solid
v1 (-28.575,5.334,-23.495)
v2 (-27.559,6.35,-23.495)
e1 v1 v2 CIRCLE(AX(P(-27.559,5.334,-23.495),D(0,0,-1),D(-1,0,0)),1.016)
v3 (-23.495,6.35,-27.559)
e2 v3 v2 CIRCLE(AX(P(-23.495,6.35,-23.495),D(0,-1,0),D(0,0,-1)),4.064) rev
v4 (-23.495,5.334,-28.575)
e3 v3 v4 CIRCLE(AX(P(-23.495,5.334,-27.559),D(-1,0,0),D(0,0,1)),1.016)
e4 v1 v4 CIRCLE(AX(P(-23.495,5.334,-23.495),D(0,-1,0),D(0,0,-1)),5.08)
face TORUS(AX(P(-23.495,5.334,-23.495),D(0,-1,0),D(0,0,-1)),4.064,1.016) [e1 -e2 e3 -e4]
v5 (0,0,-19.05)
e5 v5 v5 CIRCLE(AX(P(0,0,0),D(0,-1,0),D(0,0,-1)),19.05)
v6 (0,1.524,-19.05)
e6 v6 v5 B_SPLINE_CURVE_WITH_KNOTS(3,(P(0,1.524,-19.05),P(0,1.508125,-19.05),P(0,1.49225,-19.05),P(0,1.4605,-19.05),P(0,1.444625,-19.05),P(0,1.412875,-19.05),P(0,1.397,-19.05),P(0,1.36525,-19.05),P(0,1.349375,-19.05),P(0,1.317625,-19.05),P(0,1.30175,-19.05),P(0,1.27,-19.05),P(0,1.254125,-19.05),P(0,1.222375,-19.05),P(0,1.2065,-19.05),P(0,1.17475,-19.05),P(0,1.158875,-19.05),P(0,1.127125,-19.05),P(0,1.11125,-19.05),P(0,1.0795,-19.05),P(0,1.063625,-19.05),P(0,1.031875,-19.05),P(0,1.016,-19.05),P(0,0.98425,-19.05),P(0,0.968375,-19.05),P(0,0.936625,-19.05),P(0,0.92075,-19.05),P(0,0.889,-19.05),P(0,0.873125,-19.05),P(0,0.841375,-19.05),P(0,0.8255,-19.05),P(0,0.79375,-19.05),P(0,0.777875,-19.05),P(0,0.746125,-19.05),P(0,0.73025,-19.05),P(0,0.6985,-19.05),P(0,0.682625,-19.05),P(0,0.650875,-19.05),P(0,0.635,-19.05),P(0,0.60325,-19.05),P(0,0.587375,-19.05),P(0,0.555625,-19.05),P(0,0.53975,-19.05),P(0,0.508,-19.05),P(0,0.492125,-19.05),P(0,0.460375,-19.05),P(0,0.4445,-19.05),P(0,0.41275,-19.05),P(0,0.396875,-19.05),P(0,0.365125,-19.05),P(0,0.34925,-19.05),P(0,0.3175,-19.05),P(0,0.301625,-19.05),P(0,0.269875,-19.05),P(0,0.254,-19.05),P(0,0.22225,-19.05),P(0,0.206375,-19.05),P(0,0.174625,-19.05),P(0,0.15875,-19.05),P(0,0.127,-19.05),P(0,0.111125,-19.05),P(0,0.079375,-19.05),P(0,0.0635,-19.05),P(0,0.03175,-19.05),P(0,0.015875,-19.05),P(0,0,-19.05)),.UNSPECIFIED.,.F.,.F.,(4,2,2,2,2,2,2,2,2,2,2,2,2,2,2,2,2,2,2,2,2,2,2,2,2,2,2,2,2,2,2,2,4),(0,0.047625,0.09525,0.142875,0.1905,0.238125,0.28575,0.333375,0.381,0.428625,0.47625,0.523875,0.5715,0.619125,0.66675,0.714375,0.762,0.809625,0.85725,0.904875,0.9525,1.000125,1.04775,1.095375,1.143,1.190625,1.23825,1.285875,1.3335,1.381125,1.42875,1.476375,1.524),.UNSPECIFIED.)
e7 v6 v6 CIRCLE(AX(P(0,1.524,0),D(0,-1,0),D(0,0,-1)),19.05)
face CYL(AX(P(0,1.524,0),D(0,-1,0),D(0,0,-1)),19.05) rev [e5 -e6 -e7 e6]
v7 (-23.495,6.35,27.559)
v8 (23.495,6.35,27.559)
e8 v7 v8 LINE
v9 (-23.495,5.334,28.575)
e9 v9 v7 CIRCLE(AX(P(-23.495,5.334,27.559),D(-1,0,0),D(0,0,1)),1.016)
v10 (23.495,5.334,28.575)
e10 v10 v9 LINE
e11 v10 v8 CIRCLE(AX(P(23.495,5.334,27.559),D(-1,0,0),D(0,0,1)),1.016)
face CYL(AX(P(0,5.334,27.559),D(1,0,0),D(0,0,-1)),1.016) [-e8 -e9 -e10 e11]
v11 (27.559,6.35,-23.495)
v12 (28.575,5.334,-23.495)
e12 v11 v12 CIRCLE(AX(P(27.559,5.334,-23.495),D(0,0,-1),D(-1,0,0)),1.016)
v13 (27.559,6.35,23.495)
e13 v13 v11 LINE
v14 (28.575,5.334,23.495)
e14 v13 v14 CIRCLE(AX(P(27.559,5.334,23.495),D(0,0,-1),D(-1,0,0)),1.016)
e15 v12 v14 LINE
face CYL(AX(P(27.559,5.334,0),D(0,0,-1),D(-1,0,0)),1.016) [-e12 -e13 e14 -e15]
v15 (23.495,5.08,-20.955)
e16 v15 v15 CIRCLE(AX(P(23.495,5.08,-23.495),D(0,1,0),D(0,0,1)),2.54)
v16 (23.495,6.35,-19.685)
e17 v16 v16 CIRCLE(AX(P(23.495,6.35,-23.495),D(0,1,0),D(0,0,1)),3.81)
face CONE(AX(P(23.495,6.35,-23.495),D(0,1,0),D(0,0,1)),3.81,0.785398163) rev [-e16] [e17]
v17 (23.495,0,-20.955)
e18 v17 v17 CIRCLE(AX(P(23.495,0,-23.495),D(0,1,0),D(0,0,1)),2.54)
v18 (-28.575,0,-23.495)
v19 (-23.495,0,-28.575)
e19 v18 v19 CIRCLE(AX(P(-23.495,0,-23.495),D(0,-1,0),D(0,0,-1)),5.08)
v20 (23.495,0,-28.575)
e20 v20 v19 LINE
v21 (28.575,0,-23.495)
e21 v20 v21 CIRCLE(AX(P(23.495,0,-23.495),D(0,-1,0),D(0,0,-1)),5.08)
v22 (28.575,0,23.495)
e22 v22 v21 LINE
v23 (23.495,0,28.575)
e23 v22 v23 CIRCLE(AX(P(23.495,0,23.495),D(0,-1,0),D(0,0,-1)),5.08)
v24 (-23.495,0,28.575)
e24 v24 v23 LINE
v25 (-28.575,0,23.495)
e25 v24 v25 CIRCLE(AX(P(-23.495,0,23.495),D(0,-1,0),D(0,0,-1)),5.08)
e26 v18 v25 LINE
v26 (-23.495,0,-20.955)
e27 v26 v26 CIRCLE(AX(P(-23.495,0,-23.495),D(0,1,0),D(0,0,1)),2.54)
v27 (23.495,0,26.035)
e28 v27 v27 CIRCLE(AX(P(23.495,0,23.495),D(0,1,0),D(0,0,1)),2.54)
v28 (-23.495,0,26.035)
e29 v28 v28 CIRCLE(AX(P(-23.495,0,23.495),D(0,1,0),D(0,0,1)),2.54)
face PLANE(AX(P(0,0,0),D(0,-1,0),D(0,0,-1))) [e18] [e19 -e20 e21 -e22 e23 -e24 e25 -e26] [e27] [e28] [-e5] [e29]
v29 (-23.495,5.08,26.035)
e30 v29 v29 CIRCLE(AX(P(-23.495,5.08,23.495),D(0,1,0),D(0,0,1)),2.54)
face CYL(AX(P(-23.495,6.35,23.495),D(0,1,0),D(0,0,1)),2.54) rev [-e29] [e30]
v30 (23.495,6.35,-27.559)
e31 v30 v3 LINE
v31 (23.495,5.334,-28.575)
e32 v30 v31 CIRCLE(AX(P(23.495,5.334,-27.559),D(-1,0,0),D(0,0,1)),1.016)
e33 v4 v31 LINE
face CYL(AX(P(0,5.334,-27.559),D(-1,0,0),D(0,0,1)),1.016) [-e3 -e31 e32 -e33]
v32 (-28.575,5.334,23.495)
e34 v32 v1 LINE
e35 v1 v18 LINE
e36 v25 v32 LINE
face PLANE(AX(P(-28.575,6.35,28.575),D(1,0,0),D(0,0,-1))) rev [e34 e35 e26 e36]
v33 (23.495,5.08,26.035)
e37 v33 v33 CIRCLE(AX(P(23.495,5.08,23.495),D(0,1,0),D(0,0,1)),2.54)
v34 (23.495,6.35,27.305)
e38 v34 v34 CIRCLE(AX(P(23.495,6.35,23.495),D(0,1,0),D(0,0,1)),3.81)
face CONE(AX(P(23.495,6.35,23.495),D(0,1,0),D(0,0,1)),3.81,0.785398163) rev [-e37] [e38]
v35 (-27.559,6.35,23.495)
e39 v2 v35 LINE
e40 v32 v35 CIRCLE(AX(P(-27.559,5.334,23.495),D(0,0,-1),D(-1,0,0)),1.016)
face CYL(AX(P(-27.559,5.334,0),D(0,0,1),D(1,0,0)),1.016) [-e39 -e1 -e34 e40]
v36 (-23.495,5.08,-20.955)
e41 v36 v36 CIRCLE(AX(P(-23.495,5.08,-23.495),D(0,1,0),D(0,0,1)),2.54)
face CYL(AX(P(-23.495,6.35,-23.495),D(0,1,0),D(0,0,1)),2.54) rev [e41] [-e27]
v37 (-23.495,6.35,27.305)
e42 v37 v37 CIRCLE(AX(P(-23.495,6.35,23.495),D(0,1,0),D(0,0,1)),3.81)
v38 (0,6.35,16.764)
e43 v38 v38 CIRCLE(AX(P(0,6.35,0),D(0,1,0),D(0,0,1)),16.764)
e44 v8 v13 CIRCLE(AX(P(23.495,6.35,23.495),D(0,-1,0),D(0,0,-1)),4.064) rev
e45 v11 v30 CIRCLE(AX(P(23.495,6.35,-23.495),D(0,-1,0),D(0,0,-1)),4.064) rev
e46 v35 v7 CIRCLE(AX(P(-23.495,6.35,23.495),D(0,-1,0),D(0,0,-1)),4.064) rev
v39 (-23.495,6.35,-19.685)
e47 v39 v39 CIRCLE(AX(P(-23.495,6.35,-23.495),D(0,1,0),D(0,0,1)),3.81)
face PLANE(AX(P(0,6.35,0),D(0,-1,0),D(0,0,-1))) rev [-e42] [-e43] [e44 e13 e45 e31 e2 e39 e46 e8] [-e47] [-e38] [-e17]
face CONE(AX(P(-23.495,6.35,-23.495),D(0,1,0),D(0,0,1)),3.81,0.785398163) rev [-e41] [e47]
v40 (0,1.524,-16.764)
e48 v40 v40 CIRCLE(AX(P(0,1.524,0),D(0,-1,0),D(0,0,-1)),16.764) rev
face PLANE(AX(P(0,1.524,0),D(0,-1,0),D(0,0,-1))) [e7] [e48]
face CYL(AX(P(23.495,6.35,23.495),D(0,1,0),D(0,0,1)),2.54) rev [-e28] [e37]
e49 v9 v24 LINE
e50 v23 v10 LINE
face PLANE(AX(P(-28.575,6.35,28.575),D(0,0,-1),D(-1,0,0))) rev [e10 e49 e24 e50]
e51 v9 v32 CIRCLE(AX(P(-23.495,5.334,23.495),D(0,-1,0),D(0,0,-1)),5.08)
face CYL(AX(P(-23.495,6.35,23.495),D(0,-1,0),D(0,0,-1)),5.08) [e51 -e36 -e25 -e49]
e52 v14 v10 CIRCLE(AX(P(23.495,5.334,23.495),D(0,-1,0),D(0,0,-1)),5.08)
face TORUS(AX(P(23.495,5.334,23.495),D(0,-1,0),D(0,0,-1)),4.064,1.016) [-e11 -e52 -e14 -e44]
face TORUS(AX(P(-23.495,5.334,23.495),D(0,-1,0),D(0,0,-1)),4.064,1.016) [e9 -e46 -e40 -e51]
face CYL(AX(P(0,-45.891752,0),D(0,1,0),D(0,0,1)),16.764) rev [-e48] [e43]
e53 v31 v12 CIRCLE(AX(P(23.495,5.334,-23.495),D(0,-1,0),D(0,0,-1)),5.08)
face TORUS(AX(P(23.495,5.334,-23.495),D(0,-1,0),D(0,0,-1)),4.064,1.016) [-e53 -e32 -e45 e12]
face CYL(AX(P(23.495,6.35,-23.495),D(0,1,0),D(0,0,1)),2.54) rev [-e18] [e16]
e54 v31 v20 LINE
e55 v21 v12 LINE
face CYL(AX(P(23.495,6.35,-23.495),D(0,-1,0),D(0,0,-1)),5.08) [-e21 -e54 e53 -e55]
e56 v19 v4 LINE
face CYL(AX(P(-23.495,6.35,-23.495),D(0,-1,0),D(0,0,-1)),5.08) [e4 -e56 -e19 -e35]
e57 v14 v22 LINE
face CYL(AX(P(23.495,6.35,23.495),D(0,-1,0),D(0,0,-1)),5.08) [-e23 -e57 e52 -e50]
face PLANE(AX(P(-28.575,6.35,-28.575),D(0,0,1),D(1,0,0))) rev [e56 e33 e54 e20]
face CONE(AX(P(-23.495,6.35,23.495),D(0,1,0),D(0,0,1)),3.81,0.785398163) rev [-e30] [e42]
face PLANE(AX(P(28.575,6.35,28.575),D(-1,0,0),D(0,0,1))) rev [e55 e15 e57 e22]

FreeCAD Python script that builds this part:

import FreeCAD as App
import Part
import Sketcher
Q = App.Units.Quantity


def edges_at(feature, points):
    """Names of the edges that pass closest to the given points."""
    edges = feature.Shape.Edges
    near = lambda p: min(range(len(edges)), key=lambda i: edges[i].distToShape(Part.Vertex(*p))[0])
    return sorted({f"Edge{near(p) + 1}" for p in points})

doc = App.newDocument("Part")
body = doc.addObject("PartDesign::Body", "Body")

# Sketch on XZ plane
sketch1 = body.newObject("Sketcher::SketchObject", "Sketch")
sketch1.AttachmentSupport = (doc.getObject("XZ_Plane"), [""])
sketch1.MapMode = "FlatFace"
sketch1.addGeometry([
    Part.LineSegment(App.Vector(-29, -29, 0), App.Vector(-29, 29, 0)),
    Part.LineSegment(App.Vector(-29, 29, 0), App.Vector(29, 29, 0)),
    Part.LineSegment(App.Vector(29, 29, 0), App.Vector(29, -29, 0)),
    Part.LineSegment(App.Vector(29, -29, 0), App.Vector(-29, -29, 0)),
], False)
sketch1.addConstraint([
    Sketcher.Constraint("Coincident", 0, 2, 1, 1),
    Sketcher.Constraint("Coincident", 1, 2, 2, 1),
    Sketcher.Constraint("Coincident", 2, 2, 3, 1),
    Sketcher.Constraint("Coincident", 3, 2, 0, 1),
    Sketcher.Constraint("Vertical", 0),
    Sketcher.Constraint("Horizontal", 1),
    Sketcher.Constraint("Vertical", 2),
    Sketcher.Constraint("Horizontal", 3),
    Sketcher.Constraint("Symmetric", 0, 2, 2, 2, -1, 1),
    Sketcher.Constraint("Equal", 3, 0),
    Sketcher.Constraint("DistanceX", 1, 1, 1, 2, Q("2.25 in")),
])
pad1 = body.newObject("PartDesign::Pad", "Pad")
pad1.Profile = sketch1
pad1.Length = Q("0.25 in")
pad1.Reversed = True
doc.recompute()

fillet = body.newObject("PartDesign::Fillet", "Fillet")
fillet.Base = (pad1, edges_at(pad1, [
    (28.575, 3.175, 28.575),
    (-28.575, 3.175, 28.575),
    (-28.575, 3.175, -28.575),
    (28.575, 3.175, -28.575),
]))
fillet.Radius = Q("0.2 in")

# Sketch on XZ plane
sketch2 = body.newObject("Sketcher::SketchObject", "Sketch001")
sketch2.AttachmentSupport = (doc.getObject("XZ_Plane"), [""])
sketch2.MapMode = "FlatFace"
sketch2.addGeometry(Part.Circle(App.Vector(0, 0, 0), App.Vector(0, 0, 1), 19), False)
sketch2.addConstraint([
    Sketcher.Constraint("Coincident", 0, 3, -1, 1),
    Sketcher.Constraint("Diameter", 0, Q("1.5 in")),
])
pocket1 = body.newObject("PartDesign::Pocket", "Pocket")
pocket1.Profile = sketch2
pocket1.Length = Q("0.06 in")

# Sketch on XZ plane
sketch3 = body.newObject("Sketcher::SketchObject", "Sketch002")
sketch3.AttachmentSupport = (doc.getObject("XZ_Plane"), [""])
sketch3.MapMode = "FlatFace"
sketch3.AttachmentOffset = App.Placement(App.Vector(0, 0, -0.25 * 25.4), App.Rotation())
sketch3.addGeometry([
    Part.Circle(App.Vector(-23.5, -23.5, 0), App.Vector(0, 0, 1), 2.5),
    Part.Circle(App.Vector(23.5, -23.5, 0), App.Vector(0, 0, 1), 2.5),
    Part.Circle(App.Vector(-23.5, 23.5, 0), App.Vector(0, 0, 1), 2.5),
    Part.Circle(App.Vector(23.5, 23.5, 0), App.Vector(0, 0, 1), 2.5),
], False)
sketch3.addConstraint([
    Sketcher.Constraint("Equal", 0, 1),
    Sketcher.Constraint("Equal", 1, 2),
    Sketcher.Constraint("Equal", 2, 3),
    Sketcher.Constraint("Symmetric", 1, 3, 2, 3, -1, 1),
    Sketcher.Constraint("Symmetric", 0, 3, 3, 3, -1, 1),
    Sketcher.Constraint("Symmetric", 0, 3, 1, 3, -2),
    Sketcher.Constraint("Diameter", 0, Q("0.2 in")),
    Sketcher.Constraint("DistanceX", 0, 3, 1, 3, Q("1.85 in")),
    Sketcher.Constraint("DistanceY", 0, 3, 2, 3, Q("1.85 in")),
])
doc.recompute()
hole = body.newObject("PartDesign::Hole", "Hole")
hole.Profile = sketch3
hole.ThreadType = "None"
hole.Diameter = Q("0.2 in")
hole.DepthType = "ThroughAll"
hole.HoleCutType = "Countersink"
hole.HoleCutDiameter = Q("0.3 in")
hole.HoleCutCountersinkAngle = 90
hole.Reversed = True

# Sketch on XZ plane
sketch4 = body.newObject("Sketcher::SketchObject", "Sketch003")
sketch4.AttachmentSupport = (doc.getObject("XZ_Plane"), [""])
sketch4.MapMode = "FlatFace"
sketch4.AttachmentOffset = App.Placement(App.Vector(0, 0, -0.25 * 25.4), App.Rotation())
sketch4.addGeometry(Part.Circle(App.Vector(0, 0, 0), App.Vector(0, 0, 1), 3.2), False)
sketch4.addConstraint([
    Sketcher.Constraint("Coincident", 0, 3, -1, 1),
    Sketcher.Constraint("Diameter", 0, Q("0.25 in")),
])
pocket2 = body.newObject("PartDesign::Pocket", "Pocket001")
pocket2.Profile = sketch4
pocket2.Length = Q("0.19 in")
pocket2.Reversed = True
doc.recompute()

fillet2 = body.newObject("PartDesign::Fillet", "Fillet001")
fillet2.Base = (pocket2, edges_at(pocket2, [
    (0, 6.35, 28.575),
    (-28.575, 6.35, 0),
    (28.575, 6.35, 0),
    (0, 6.35, -28.575),
    (-27.087, 6.35, -27.087),
    (27.087, 6.35, -27.087),
    (27.087, 6.35, 27.087),
    (-27.087, 6.35, 27.087),
]))
fillet2.Radius = Q("0.04 in")

# Sketch on XZ plane
sketch5 = body.newObject("Sketcher::SketchObject", "Sketch004")
sketch5.AttachmentSupport = (doc.getObject("XZ_Plane"), [""])
sketch5.MapMode = "FlatFace"
sketch5.AttachmentOffset = App.Placement(App.Vector(0, 0, -0.25 * 25.4), App.Rotation())
sketch5.addGeometry(Part.Circle(App.Vector(0, 0, 0), App.Vector(0, 0, 1), 17), False)
sketch5.addConstraint([
    Sketcher.Constraint("Coincident", 0, 3, -1, 1),
    Sketcher.Constraint("Diameter", 0, Q("1.32 in")),
])
pocket3 = body.newObject("PartDesign::Pocket", "Pocket002")
pocket3.Profile = sketch5
pocket3.Length = Q("0.19 in")
pocket3.Reversed = True

doc.recompute()
